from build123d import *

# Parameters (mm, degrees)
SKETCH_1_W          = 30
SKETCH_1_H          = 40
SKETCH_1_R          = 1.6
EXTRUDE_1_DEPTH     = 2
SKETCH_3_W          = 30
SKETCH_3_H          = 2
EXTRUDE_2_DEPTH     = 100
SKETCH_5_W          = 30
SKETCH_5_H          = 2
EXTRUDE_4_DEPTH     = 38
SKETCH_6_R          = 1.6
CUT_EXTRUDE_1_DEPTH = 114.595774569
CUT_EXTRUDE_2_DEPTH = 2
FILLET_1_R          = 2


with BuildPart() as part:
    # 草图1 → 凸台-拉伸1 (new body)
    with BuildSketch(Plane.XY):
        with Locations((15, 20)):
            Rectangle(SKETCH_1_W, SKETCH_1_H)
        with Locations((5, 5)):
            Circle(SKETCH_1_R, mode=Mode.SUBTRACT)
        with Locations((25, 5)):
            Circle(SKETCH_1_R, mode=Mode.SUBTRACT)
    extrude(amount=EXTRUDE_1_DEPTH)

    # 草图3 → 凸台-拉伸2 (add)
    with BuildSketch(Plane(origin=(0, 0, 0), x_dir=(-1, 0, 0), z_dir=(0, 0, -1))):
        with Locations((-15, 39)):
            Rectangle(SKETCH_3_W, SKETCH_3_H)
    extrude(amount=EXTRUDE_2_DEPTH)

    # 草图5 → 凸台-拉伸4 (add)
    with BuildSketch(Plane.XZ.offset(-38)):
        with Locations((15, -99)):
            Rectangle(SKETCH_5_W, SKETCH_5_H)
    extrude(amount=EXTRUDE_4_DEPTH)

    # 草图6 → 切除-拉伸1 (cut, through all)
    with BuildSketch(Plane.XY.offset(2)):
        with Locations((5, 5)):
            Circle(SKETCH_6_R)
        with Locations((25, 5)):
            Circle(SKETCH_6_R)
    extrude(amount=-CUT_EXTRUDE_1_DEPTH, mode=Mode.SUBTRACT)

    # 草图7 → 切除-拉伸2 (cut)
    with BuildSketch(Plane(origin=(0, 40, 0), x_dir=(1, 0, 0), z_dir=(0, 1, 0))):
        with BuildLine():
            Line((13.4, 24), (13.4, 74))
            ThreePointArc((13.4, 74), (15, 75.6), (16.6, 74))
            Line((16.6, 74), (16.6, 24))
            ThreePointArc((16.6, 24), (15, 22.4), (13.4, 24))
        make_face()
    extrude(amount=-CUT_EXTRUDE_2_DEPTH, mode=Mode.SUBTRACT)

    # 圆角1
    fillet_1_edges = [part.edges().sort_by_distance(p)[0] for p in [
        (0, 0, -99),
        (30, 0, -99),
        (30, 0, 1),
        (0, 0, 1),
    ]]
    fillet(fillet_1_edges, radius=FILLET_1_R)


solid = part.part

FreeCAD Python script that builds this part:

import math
import FreeCAD as App
import Part
import Sketcher

V = App.Vector
Q = App.Units.Quantity


def edges_at(feature, points):
    """Names of the edges that pass closest to the given points."""
    edges = feature.Shape.Edges
    near = lambda p: min(range(len(edges)), key=lambda i: edges[i].distToShape(Part.Vertex(*p))[0])
    return sorted({f"Edge{near(p) + 1}" for p in points})


def add_polygon(sketch, points):
    """Adds a closed chain of lines whose ends are joined by coincident constraints."""
    first, n = sketch.GeometryCount, len(points)
    for a, b in zip(points, points[1:] + points[:1]):
        sketch.addGeometry(Part.LineSegment(App.Vector(*a, 0), App.Vector(*b, 0)), False)
    for i in range(n):
        sketch.addConstraint(Sketcher.Constraint("Coincident", first + i, 2, first + (i + 1) % n, 1))

doc = App.newDocument("Part")
body = doc.addObject("PartDesign::Body", "Body")

# Sketch on XY plane
sketch1 = body.newObject("Sketcher::SketchObject", "Sketch")
sketch1.AttachmentSupport = (doc.getObject("XY_Plane"), [""])
sketch1.MapMode = "FlatFace"
add_polygon(sketch1, [(0, 40), (0, 0), (30, 0), (30, 40)])  # lines 0-3
sketch1.addGeometry(Part.Circle(V(5, 5, 0), V(0, 0, 1), 1.6), False)  # 4
sketch1.addGeometry(Part.Circle(V(25, 5, 0), V(0, 0, 1), 1.6), False)  # 5
sketch1.addConstraint([
    Sketcher.Constraint("Vertical", 0),
    Sketcher.Constraint("Horizontal", 1),
    Sketcher.Constraint("Vertical", 2),
    Sketcher.Constraint("Horizontal", 3),
    Sketcher.Constraint("Coincident", 0, 2, -1, 1),
    Sketcher.Constraint("Equal", 4, 5),
    Sketcher.Constraint("Horizontal", 4, 3, 5, 3),
    Sketcher.Constraint("Diameter", 4, Q("3.2 mm")),
    Sketcher.Constraint("DistanceX", 1, 1, 1, 2, Q("30 mm")),
    Sketcher.Constraint("DistanceY", 0, 2, 0, 1, Q("40 mm")),
    Sketcher.Constraint("DistanceX", -1, 1, 4, 3, Q("5 mm")),
    Sketcher.Constraint("DistanceY", -1, 1, 4, 3, Q("5 mm")),
    Sketcher.Constraint("DistanceX", -1, 1, 5, 3, Q("25 mm")),
])
pad1 = body.newObject("PartDesign::Pad", "Pad")
pad1.Profile = sketch1
pad1.Length = 2

# Sketch on XY plane
sketch2 = body.newObject("Sketcher::SketchObject", "Sketch001")
sketch2.AttachmentSupport = (doc.getObject("XY_Plane"), [""])
sketch2.MapMode = "FlatFace"
add_polygon(sketch2, [(30, 40), (30, 38), (0, 38), (0, 40)])  # lines 0-3
sketch2.addConstraint([
    Sketcher.Constraint("Vertical", 0),
    Sketcher.Constraint("Horizontal", 1),
    Sketcher.Constraint("Vertical", 2),
    Sketcher.Constraint("Horizontal", 3),
    Sketcher.Constraint("PointOnObject", 1, 2, -2),
    Sketcher.Constraint("DistanceX", 1, 2, 1, 1, Q("30 mm")),
    Sketcher.Constraint("DistanceY", 0, 2, 0, 1, Q("2 mm")),
    Sketcher.Constraint("DistanceY", -1, 1, 0, 2, Q("38 mm")),
])
pad2 = body.newObject("PartDesign::Pad", "Pad001")
pad2.Profile = sketch2
pad2.Length = 100
pad2.Reversed = True

# Sketch on XZ plane
sketch3 = body.newObject("Sketcher::SketchObject", "Sketch002")
sketch3.AttachmentSupport = (doc.getObject("XZ_Plane"), [""])
sketch3.MapMode = "FlatFace"
sketch3.AttachmentOffset = App.Placement(V(0, 0, -38), App.Rotation())
add_polygon(sketch3, [(0, -98), (0, -100), (30, -100), (30, -98)])  # lines 0-3
sketch3.addConstraint([
    Sketcher.Constraint("Vertical", 0),
    Sketcher.Constraint("Horizontal", 1),
    Sketcher.Constraint("Vertical", 2),
    Sketcher.Constraint("Horizontal", 3),
    Sketcher.Constraint("PointOnObject", 0, 2, -2),
    Sketcher.Constraint("DistanceX", 1, 1, 1, 2, Q("30 mm")),
    Sketcher.Constraint("DistanceY", 0, 2, 0, 1, Q("2 mm")),
    Sketcher.Constraint("DistanceY", 0, 2, -1, 1, Q("100 mm")),
])
pad3 = body.newObject("PartDesign::Pad", "Pad002")
pad3.Profile = sketch3
pad3.Length = 38

# Sketch on XY plane
sketch4 = body.newObject("Sketcher::SketchObject", "Sketch003")
sketch4.AttachmentSupport = (doc.getObject("XY_Plane"), [""])
sketch4.MapMode = "FlatFace"
sketch4.AttachmentOffset = App.Placement(V(0, 0, 2), App.Rotation())
sketch4.addGeometry([
    Part.Circle(V(5, 5, 0), V(0, 0, 1), 1.6),
    Part.Circle(V(25, 5, 0), V(0, 0, 1), 1.6),
], False)
sketch4.addConstraint([
    Sketcher.Constraint("Equal", 0, 1),
    Sketcher.Constraint("Horizontal", 0, 3, 1, 3),
    Sketcher.Constraint("Diameter", 0, Q("3.2 mm")),
    Sketcher.Constraint("DistanceX", -1, 1, 0, 3, Q("5 mm")),
    Sketcher.Constraint("DistanceY", -1, 1, 0, 3, Q("5 mm")),
    Sketcher.Constraint("DistanceX", -1, 1, 1, 3, Q("25 mm")),
])
pocket1 = body.newObject("PartDesign::Pocket", "Pocket")
pocket1.Profile = sketch4
pocket1.Type = "ThroughAll"

# Sketch on XZ plane
sketch5 = body.newObject("Sketcher::SketchObject", "Sketch004")
sketch5.AttachmentSupport = (doc.getObject("XZ_Plane"), [""])
sketch5.MapMode = "FlatFace"
sketch5.AttachmentOffset = App.Placement(V(0, 0, -40), App.Rotation())
sketch5.addGeometry([
    Part.LineSegment(V(13.4, -74, 0), V(13.4, -24, 0)),
    Part.ArcOfCircle(Part.Circle(V(15, -24, 0), V(0, 0, 1), 1.6), math.radians(0), math.radians(180)),
    Part.LineSegment(V(16.6, -24, 0), V(16.6, -74, 0)),
    Part.ArcOfCircle(Part.Circle(V(15, -74, 0), V(0, 0, 1), 1.6), math.radians(180), math.radians(360)),
], False)
sketch5.addConstraint([
    Sketcher.Constraint("Tangent", 0, 2, 1, 2),
    Sketcher.Constraint("Tangent", 1, 1, 2, 1),
    Sketcher.Constraint("Tangent", 2, 2, 3, 2),
    Sketcher.Constraint("Tangent", 3, 1, 0, 1),
    Sketcher.Constraint("Vertical", 0),
    Sketcher.Constraint("Vertical", 2),
    Sketcher.Constraint("Radius", 1, Q("1.6 mm")),
    Sketcher.Constraint("DistanceY", 0, 1, 0, 2, Q("50 mm")),
    Sketcher.Constraint("DistanceX", -1, 1, 1, 3, Q("15 mm")),
    Sketcher.Constraint("DistanceY", 1, 3, -1, 1, Q("24 mm")),
])
pocket2 = body.newObject("PartDesign::Pocket", "Pocket001")
pocket2.Profile = sketch5
pocket2.Length = 2
pocket2.Reversed = True
doc.recompute()

fillet = body.newObject("PartDesign::Fillet", "Fillet")
fillet.Base = (pocket2, edges_at(pocket2, [
    (0, 0, -99),
    (30, 0, -99),
    (30, 0, 1),
    (0, 0, 1),
]))
fillet.Radius = 2

doc.recompute()
